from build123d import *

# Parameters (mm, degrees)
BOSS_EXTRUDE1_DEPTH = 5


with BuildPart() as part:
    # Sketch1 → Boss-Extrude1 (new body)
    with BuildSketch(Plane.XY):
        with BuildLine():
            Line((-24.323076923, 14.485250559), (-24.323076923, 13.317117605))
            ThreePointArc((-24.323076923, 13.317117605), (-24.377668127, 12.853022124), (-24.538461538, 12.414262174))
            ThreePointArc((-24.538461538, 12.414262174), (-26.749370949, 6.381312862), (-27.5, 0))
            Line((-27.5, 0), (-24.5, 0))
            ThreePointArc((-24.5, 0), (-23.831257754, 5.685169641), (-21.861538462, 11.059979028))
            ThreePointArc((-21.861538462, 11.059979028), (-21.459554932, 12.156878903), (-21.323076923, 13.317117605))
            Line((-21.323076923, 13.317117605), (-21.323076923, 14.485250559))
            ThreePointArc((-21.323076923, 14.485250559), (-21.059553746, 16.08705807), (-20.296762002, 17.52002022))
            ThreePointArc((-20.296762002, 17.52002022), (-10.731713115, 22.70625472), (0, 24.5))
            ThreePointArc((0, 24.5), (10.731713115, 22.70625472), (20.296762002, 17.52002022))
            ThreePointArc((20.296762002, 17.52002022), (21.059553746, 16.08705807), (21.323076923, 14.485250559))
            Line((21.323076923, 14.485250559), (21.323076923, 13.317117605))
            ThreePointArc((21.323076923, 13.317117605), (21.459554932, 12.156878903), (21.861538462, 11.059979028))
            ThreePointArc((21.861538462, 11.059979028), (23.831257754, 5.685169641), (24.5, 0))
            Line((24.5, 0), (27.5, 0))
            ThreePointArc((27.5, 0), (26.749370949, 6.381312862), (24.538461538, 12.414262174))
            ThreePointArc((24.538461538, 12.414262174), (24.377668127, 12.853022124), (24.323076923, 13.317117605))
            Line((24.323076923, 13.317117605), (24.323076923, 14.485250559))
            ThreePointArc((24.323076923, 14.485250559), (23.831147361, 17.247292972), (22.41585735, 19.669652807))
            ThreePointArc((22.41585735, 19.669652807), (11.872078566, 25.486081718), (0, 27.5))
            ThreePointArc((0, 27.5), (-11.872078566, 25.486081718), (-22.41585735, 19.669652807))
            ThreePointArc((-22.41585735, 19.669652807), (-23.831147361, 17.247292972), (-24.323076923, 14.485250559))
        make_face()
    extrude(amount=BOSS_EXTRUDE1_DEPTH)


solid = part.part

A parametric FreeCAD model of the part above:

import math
import FreeCAD as App
import Part
import Sketcher
from FreeCAD import Vector

doc = App.newDocument("Part")
params = doc.addObject("Spreadsheet::Sheet", "Params")
for row, (alias, value) in enumerate([
    ("sketch1_radius", "2 mm"),
    ("sketch1_radius2", "5 mm"),
    ("sketch1_radius3", "33 mm"),
    ("sketch1_radius4", "36 mm"),
    ("sketch1_radius5", "27.5 mm"),
    ("pad1_length", "5 mm"),
], start=1):
    params.set(f"A{row}", alias)
    params.set(f"B{row}", "=" + value)
    params.setAlias(f"B{row}", alias)

body = doc.addObject("PartDesign::Body", "Body")

# Sketch on XY plane
sketch1 = doc.addObject("Sketcher::SketchObject", "Sketch")
body.addObject(sketch1)
sketch1.AttachmentSupport = (doc.XY_Plane, [""])
sketch1.MapMode = "FlatFace"
sketch1.addGeometry(Part.LineSegment(Vector(-24.323077, 14.485251, 0), Vector(-24.323077, 13.317118, 0)), False)
sketch1.addGeometry(Part.ArcOfCircle(Part.Circle(Vector(-26.323077, 13.317118, 0), Vector(0, 0, 1), 2), math.radians(-26.835322), math.radians(0)), False)
sketch1.addGeometry(Part.ArcOfCircle(Part.Circle(Vector(0, 0, 0), Vector(0, 0, 1), 27.5), math.radians(153.164678), math.radians(180)), False)
sketch1.addGeometry(Part.LineSegment(Vector(-27.5, 0, 0), Vector(-24.5, 0, 0)), False)
sketch1.addGeometry(Part.ArcOfCircle(Part.Circle(Vector(0, 0, 0), Vector(0, 0, 1), 24.5), math.radians(153.164678), math.radians(180)), False)
sketch1.addGeometry(Part.ArcOfCircle(Part.Circle(Vector(-26.323077, 13.317118, 0), Vector(0, 0, 1), 5), math.radians(-26.835322), math.radians(0)), False)
sketch1.addGeometry(Part.LineSegment(Vector(-21.323077, 13.317118, 0), Vector(-21.323077, 14.485251, 0)), False)
sketch1.addGeometry(Part.ArcOfCircle(Part.Circle(Vector(-16.323077, 14.485251, 0), Vector(0, 0, 1), 5), math.radians(142.630423), math.radians(180)), False)
sketch1.addGeometry(Part.ArcOfCircle(Part.Circle(Vector(0, -8.5, 0), Vector(0, 0, 1), 33), math.radians(90), math.radians(127.9558)), False)
sketch1.addGeometry(Part.ArcOfCircle(Part.Circle(Vector(0, -8.5, 0), Vector(0, 0, 1), 33), math.radians(52.0442), math.radians(90)), False)
sketch1.addGeometry(Part.ArcOfCircle(Part.Circle(Vector(16.323077, 14.485251, 0), Vector(0, 0, 1), 5), math.radians(0), math.radians(37.369577)), False)
sketch1.addGeometry(Part.LineSegment(Vector(21.323077, 14.485251, 0), Vector(21.323077, 13.317118, 0)), False)
sketch1.addGeometry(Part.ArcOfCircle(Part.Circle(Vector(26.323077, 13.317118, 0), Vector(0, 0, 1), 5), math.radians(180), math.radians(206.835322)), False)
sketch1.addGeometry(Part.ArcOfCircle(Part.Circle(Vector(0, 0, 0), Vector(0, 0, 1), 24.5), math.radians(0), math.radians(26.835322)), False)
sketch1.addGeometry(Part.LineSegment(Vector(24.5, 0, 0), Vector(27.5, 0, 0)), False)
sketch1.addGeometry(Part.ArcOfCircle(Part.Circle(Vector(0, 0, 0), Vector(0, 0, 1), 27.5), math.radians(0), math.radians(26.835322)), False)
sketch1.addGeometry(Part.ArcOfCircle(Part.Circle(Vector(26.323077, 13.317118, 0), Vector(0, 0, 1), 2), math.radians(-180), math.radians(-153.164678)), False)
sketch1.addGeometry(Part.LineSegment(Vector(24.323077, 13.317118, 0), Vector(24.323077, 14.485251, 0)), False)
sketch1.addGeometry(Part.ArcOfCircle(Part.Circle(Vector(16.323077, 14.485251, 0), Vector(0, 0, 1), 8), math.radians(0), math.radians(40.394762)), False)
sketch1.addGeometry(Part.ArcOfCircle(Part.Circle(Vector(0, -8.5, 0), Vector(0, 0, 1), 36), math.radians(51.489159), math.radians(90)), False)
sketch1.addGeometry(Part.ArcOfCircle(Part.Circle(Vector(0, -8.5, 0), Vector(0, 0, 1), 36), math.radians(90), math.radians(128.510841)), False)
sketch1.addGeometry(Part.ArcOfCircle(Part.Circle(Vector(-16.323077, 14.485251, 0), Vector(0, 0, 1), 8), math.radians(139.605238), math.radians(180)), False)
sketch1.addConstraint(Sketcher.Constraint("Tangent", 0, 2, 1, 2))
sketch1.addConstraint(Sketcher.Constraint("Tangent", 1, 1, 2, 1))
sketch1.addConstraint(Sketcher.Constraint("Coincident", 2, 2, 3, 1))
sketch1.addConstraint(Sketcher.Constraint("Coincident", 3, 2, 4, 2))
sketch1.addConstraint(Sketcher.Constraint("Tangent", 4, 1, 5, 1))
sketch1.addConstraint(Sketcher.Constraint("Tangent", 5, 2, 6, 1))
sketch1.addConstraint(Sketcher.Constraint("Tangent", 6, 2, 7, 2))
sketch1.addConstraint(Sketcher.Constraint("Coincident", 7, 1, 8, 2))
sketch1.addConstraint(Sketcher.Constraint("Tangent", 8, 1, 9, 2))
sketch1.addConstraint(Sketcher.Constraint("Coincident", 9, 1, 10, 2))
sketch1.addConstraint(Sketcher.Constraint("Tangent", 10, 1, 11, 1))
sketch1.addConstraint(Sketcher.Constraint("Tangent", 11, 2, 12, 1))
sketch1.addConstraint(Sketcher.Constraint("Tangent", 12, 2, 13, 2))
sketch1.addConstraint(Sketcher.Constraint("Coincident", 13, 1, 14, 1))
sketch1.addConstraint(Sketcher.Constraint("Coincident", 14, 2, 15, 1))
sketch1.addConstraint(Sketcher.Constraint("Tangent", 15, 2, 16, 2))
sketch1.addConstraint(Sketcher.Constraint("Tangent", 16, 1, 17, 1))
sketch1.addConstraint(Sketcher.Constraint("Tangent", 17, 2, 18, 1))
sketch1.addConstraint(Sketcher.Constraint("Coincident", 18, 2, 19, 1))
sketch1.addConstraint(Sketcher.Constraint("Tangent", 19, 2, 20, 1))
sketch1.addConstraint(Sketcher.Constraint("Coincident", 20, 2, 21, 1))
sketch1.addConstraint(Sketcher.Constraint("Tangent", 21, 2, 0, 1))
sketch1.addConstraint(Sketcher.Constraint("Vertical", 0))
sketch1.addConstraint(Sketcher.Constraint("Horizontal", 3))
sketch1.addConstraint(Sketcher.Constraint("Vertical", 6))
sketch1.addConstraint(Sketcher.Constraint("Vertical", 11))
sketch1.addConstraint(Sketcher.Constraint("Horizontal", 14))
sketch1.addConstraint(Sketcher.Constraint("Vertical", 17))
sketch1.addConstraint(Sketcher.Constraint("Coincident", 2, 3, -1, 1))
sketch1.addConstraint(Sketcher.Constraint("Coincident", 4, 3, -1, 1))
sketch1.addConstraint(Sketcher.Constraint("Coincident", 13, 3, -1, 1))
sketch1.addConstraint(Sketcher.Constraint("Coincident", 15, 3, -1, 1))
sketch1.addConstraint(Sketcher.Constraint("Coincident", 5, 3, 1, 3))
sketch1.addConstraint(Sketcher.Constraint("Coincident", 16, 3, 12, 3))
sketch1.addConstraint(Sketcher.Constraint("Coincident", 18, 3, 10, 3))
sketch1.addConstraint(Sketcher.Constraint("Coincident", 19, 3, 8, 3))
sketch1.addConstraint(Sketcher.Constraint("Coincident", 21, 3, 7, 3))
sketch1.addConstraint(Sketcher.Constraint("Equal", 5, 7))
sketch1.addConstraint(Sketcher.Constraint("Equal", 8, 9))
sketch1.addConstraint(Sketcher.Constraint("Equal", 7, 10))
sketch1.addConstraint(Sketcher.Constraint("Equal", 10, 12))
sketch1.addConstraint(Sketcher.Constraint("Equal", 4, 13))
sketch1.addConstraint(Sketcher.Constraint("Equal", 2, 15))
sketch1.addConstraint(Sketcher.Constraint("Equal", 19, 20))
sketch1.addConstraint(Sketcher.Constraint("Symmetric", 7, 3, 10, 3, -2))
sketch1.addConstraint(Sketcher.Constraint("PointOnObject", 8, 3, -2))
sketch1.addConstraint(Sketcher.Constraint("PointOnObject", 2, 2, -1))
sketch1.addConstraint(Sketcher.Constraint("PointOnObject", 8, 1, -2))
sketch1.addConstraint(Sketcher.Constraint("PointOnObject", 13, 1, -1))
sketch1.addConstraint(Sketcher.Constraint("PointOnObject", 19, 2, -2))
sketch1.addConstraint(Sketcher.Constraint("Radius", 1, 2.0))
sketch1.addConstraint(Sketcher.Constraint("Radius", 5, 5.0))
sketch1.addConstraint(Sketcher.Constraint("Radius", 8, 33.0))
sketch1.addConstraint(Sketcher.Constraint("Radius", 19, 36.0))
sketch1.addConstraint(Sketcher.Constraint("Radius", 2, 27.5))
sketch1.addConstraint(Sketcher.Constraint("DistanceY", 8, 3, -1, 1, 8.5))
sketch1.addConstraint(Sketcher.Constraint("DistanceY", 0, 2, 0, 1, 1.168133))
sketch1.addConstraint(Sketcher.Constraint("DistanceY", -1, 1, 7, 3, 14.485251))
sketch1.setExpression("Constraints[50]", "Params.sketch1_radius")
sketch1.setExpression("Constraints[51]", "Params.sketch1_radius2")
sketch1.setExpression("Constraints[52]", "Params.sketch1_radius3")
sketch1.setExpression("Constraints[53]", "Params.sketch1_radius4")
sketch1.setExpression("Constraints[54]", "Params.sketch1_radius5")
pad1 = doc.addObject("PartDesign::Pad", "Pad")
body.addObject(pad1)
pad1.Profile = sketch1
pad1.setExpression("Length", "Params.pad1_length")

doc.recompute()
